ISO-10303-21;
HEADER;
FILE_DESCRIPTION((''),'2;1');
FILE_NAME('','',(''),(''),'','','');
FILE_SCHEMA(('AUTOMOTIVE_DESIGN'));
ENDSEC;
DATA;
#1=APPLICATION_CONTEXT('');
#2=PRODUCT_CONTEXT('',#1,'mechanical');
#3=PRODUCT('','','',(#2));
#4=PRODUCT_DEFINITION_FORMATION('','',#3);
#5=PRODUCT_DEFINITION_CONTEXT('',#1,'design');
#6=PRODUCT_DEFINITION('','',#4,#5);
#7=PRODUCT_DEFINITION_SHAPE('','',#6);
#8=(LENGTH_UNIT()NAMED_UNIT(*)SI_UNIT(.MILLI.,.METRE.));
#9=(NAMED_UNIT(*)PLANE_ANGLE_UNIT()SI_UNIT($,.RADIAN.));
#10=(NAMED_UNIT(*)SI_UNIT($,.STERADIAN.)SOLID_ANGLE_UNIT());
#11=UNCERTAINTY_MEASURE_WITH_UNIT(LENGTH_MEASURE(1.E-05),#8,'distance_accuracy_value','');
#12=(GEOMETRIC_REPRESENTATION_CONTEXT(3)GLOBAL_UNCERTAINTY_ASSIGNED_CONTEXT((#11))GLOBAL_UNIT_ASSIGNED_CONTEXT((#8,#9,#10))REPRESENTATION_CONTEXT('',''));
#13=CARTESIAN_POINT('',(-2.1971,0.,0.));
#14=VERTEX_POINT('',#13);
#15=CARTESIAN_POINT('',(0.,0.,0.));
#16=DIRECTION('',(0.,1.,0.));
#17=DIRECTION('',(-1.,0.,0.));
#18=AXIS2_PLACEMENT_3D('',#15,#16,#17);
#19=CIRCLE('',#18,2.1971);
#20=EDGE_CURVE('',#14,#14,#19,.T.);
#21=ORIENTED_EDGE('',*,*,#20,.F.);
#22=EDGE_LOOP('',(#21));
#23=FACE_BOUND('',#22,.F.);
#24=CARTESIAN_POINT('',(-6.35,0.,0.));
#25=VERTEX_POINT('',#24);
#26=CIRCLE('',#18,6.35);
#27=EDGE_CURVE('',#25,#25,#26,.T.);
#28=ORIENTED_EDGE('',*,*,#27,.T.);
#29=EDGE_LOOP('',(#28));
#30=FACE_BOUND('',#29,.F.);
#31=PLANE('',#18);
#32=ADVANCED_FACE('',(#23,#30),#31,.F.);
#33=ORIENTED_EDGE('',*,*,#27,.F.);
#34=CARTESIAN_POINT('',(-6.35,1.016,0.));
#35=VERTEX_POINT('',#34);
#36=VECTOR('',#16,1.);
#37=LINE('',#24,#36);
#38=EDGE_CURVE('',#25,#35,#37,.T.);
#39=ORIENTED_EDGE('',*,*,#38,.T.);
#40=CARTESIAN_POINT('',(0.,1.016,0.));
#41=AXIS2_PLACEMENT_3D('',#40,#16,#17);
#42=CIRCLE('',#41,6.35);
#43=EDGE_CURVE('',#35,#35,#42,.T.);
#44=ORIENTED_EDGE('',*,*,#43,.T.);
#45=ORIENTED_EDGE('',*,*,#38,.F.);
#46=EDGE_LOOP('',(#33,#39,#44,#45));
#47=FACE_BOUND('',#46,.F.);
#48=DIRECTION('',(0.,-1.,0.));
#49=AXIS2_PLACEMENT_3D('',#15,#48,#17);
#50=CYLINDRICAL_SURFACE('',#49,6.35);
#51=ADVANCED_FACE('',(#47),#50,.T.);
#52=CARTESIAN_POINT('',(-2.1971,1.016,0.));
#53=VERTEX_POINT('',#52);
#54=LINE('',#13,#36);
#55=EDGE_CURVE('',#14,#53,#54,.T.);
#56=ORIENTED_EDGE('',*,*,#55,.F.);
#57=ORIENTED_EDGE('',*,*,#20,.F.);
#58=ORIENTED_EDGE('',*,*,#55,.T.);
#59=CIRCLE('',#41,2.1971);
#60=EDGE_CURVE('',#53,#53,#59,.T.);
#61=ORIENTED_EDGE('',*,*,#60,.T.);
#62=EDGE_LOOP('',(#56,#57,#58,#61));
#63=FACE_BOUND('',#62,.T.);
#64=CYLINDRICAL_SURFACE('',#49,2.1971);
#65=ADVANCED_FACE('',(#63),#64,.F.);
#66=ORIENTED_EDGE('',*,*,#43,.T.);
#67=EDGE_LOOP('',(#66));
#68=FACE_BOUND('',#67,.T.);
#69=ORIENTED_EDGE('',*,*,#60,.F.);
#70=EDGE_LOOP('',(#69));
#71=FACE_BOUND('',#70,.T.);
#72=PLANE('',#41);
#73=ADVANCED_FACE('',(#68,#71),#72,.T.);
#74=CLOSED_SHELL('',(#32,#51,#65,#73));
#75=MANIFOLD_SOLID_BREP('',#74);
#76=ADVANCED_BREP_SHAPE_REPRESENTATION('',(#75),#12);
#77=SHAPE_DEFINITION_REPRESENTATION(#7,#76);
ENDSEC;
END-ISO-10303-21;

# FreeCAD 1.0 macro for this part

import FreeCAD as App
import Part
import Sketcher

V = App.Vector
Q = App.Units.Quantity

doc = App.newDocument("Part")
body = doc.addObject("PartDesign::Body", "Body")

sketch1 = body.newObject("Sketcher::SketchObject", "Sketch")
sketch1.AttachmentSupport = (doc.getObject("XZ_Plane"), [""])
sketch1.MapMode = "FlatFace"
sketch1.addGeometry([
    Part.Circle(V(0, 0, 0), V(0, 0, 1), 6.3),
    Part.Circle(V(0, 0, 0), V(0, 0, 1), 2.2),
], False)
sketch1.addConstraint([
    Sketcher.Constraint("Coincident", 0, 3, -1, 1),
    Sketcher.Constraint("Coincident", 1, 3, -1, 1),
    Sketcher.Constraint("Diameter", 0, Q("0.5 in")),
    Sketcher.Constraint("Diameter", 1, Q("0.173 in")),
])
pad1 = body.newObject("PartDesign::Pad", "Pad")
pad1.Profile = sketch1
pad1.Length = Q("0.04 in")
pad1.Reversed = True

doc.recompute()
